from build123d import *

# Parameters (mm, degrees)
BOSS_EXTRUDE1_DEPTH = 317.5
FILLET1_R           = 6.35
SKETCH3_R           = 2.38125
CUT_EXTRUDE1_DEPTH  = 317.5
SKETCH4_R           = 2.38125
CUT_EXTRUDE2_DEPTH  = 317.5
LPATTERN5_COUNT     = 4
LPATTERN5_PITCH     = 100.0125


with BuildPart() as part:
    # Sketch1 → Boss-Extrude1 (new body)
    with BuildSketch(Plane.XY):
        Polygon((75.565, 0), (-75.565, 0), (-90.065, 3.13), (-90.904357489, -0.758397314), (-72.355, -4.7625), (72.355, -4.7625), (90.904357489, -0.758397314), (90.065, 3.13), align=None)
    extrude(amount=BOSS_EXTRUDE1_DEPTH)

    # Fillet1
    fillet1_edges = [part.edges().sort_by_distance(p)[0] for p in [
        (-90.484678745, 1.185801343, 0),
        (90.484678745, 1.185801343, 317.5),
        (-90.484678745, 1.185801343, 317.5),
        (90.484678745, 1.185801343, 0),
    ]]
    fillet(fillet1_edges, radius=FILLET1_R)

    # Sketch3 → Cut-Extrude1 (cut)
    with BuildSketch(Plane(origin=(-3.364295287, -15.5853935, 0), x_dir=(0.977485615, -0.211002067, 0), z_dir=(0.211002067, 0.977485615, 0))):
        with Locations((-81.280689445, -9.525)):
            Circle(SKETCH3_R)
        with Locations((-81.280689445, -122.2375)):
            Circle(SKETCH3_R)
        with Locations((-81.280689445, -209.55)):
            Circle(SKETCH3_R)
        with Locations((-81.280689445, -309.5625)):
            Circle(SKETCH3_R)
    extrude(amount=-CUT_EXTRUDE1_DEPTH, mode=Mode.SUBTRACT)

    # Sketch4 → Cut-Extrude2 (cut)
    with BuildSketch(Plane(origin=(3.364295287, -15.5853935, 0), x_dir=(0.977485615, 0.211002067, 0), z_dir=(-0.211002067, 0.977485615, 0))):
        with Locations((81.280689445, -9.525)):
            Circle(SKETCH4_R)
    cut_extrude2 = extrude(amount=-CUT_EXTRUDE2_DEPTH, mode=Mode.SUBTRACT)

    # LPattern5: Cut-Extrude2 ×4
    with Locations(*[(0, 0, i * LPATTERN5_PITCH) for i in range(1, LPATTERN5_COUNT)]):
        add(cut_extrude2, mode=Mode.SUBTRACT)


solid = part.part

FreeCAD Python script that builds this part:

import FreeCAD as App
import Part
import Sketcher
Q = App.Units.Quantity


def edges_at(feature, points):
    """Names of the edges that pass closest to the given points."""
    edges = feature.Shape.Edges
    near = lambda p: min(range(len(edges)), key=lambda i: edges[i].distToShape(Part.Vertex(*p))[0])
    return sorted({f"Edge{near(p) + 1}" for p in points})

doc = App.newDocument("Part")
body = doc.addObject("PartDesign::Body", "Body")

sketch1 = body.newObject("Sketcher::SketchObject", "Sketch")
sketch1.AttachmentSupport = (doc.getObject("XY_Plane"), [""])
sketch1.MapMode = "FlatFace"
sketch1.addGeometry(Part.LineSegment(App.Vector(75.565, 0, 0), App.Vector(-75.565, 0, 0)), False)
sketch1.addGeometry(Part.LineSegment(App.Vector(-75.565, 0, 0), App.Vector(-90.065, 3.13, 0)), False)
sketch1.addGeometry(Part.LineSegment(App.Vector(-90.065, 3.13, 0), App.Vector(-90.904357, -0.758397, 0)), False)
sketch1.addGeometry(Part.LineSegment(App.Vector(-90.904357, -0.758397, 0), App.Vector(-72.355, -4.7625, 0)), False)
sketch1.addGeometry(Part.LineSegment(App.Vector(-72.355, -4.7625, 0), App.Vector(72.355, -4.7625, 0)), False)
sketch1.addGeometry(Part.LineSegment(App.Vector(72.355, -4.7625, 0), App.Vector(90.904357, -0.758397, 0)), False)
sketch1.addGeometry(Part.LineSegment(App.Vector(90.904357, -0.758397, 0), App.Vector(90.065, 3.13, 0)), False)
sketch1.addGeometry(Part.LineSegment(App.Vector(90.065, 3.13, 0), App.Vector(75.565, 0, 0)), False)
sketch1.addConstraint(Sketcher.Constraint("Coincident", 0, 2, 1, 1))
sketch1.addConstraint(Sketcher.Constraint("Coincident", 1, 2, 2, 1))
sketch1.addConstraint(Sketcher.Constraint("Coincident", 2, 2, 3, 1))
sketch1.addConstraint(Sketcher.Constraint("Coincident", 3, 2, 4, 1))
sketch1.addConstraint(Sketcher.Constraint("Coincident", 4, 2, 5, 1))
sketch1.addConstraint(Sketcher.Constraint("Coincident", 5, 2, 6, 1))
sketch1.addConstraint(Sketcher.Constraint("Coincident", 6, 2, 7, 1))
sketch1.addConstraint(Sketcher.Constraint("Coincident", 7, 2, 0, 1))
sketch1.addConstraint(Sketcher.Constraint("Horizontal", 0))
sketch1.addConstraint(Sketcher.Constraint("Horizontal", 4))
sketch1.addConstraint(Sketcher.Constraint("Symmetric", 0, 2, 7, 2, -1, 1))
sketch1.addConstraint(Sketcher.Constraint("Symmetric", 2, 2, 5, 2, -2))
sketch1.addConstraint(Sketcher.Constraint("Symmetric", 1, 2, 6, 2, -2))
sketch1.addConstraint(Sketcher.Constraint("Perpendicular", 1, 2))
sketch1.addConstraint(Sketcher.Constraint("Perpendicular", 2, 3))
sketch1.addConstraint(Sketcher.Constraint("Perpendicular", 5, 6))
sketch1.addConstraint(Sketcher.Constraint("DistanceX", 0, 2, 0, 1, Q("5.95 in")))
sketch1.addConstraint(Sketcher.Constraint("DistanceY", 3, 2, -1, 1, Q("0.1875 in")))
sketch1.addConstraint(Sketcher.Constraint("DistanceX", 4, 1, 4, 2, 144.71))
sketch1.addConstraint(Sketcher.Constraint("DistanceX", 1, 2, -1, 1, 90.065))
sketch1.addConstraint(Sketcher.Constraint("DistanceY", -1, 1, 1, 2, 3.13))
pad1 = body.newObject("PartDesign::Pad", "Pad")
pad1.Profile = sketch1
pad1.Length = Q("12.5 in")
doc.recompute()

fillet = body.newObject("PartDesign::Fillet", "Fillet")
fillet.Base = (pad1, edges_at(pad1, [
    (-90.485, 1.186, 0),
    (90.485, 1.186, 317.5),
    (-90.485, 1.186, 317.5),
    (90.485, 1.186, 0),
]))
fillet.Radius = Q("0.25 in")

sketch2 = body.newObject("Sketcher::SketchObject", "Sketch001")
sketch2.Placement = App.Placement(App.Vector(-3.364295, -15.585394, 0), App.Rotation(App.Vector(0.977485615, -0.211002067, 0), App.Vector(0, 0, -1), App.Vector(0.211002067, 0.977485615, 0), "ZXY"))
sketch2.addGeometry(Part.Circle(App.Vector(-81.280689, -9.525, 0), App.Vector(0, 0, 1), 2.38125), False)
sketch2.addGeometry(Part.Circle(App.Vector(-81.280689, -122.2375, 0), App.Vector(0, 0, 1), 2.38125), False)
sketch2.addGeometry(Part.Circle(App.Vector(-81.280689, -209.55, 0), App.Vector(0, 0, 1), 2.38125), False)
sketch2.addGeometry(Part.Circle(App.Vector(-81.280689, -309.5625, 0), App.Vector(0, 0, 1), 2.38125), False)
sketch2.addConstraint(Sketcher.Constraint("Equal", 0, 1))
sketch2.addConstraint(Sketcher.Constraint("Equal", 1, 2))
sketch2.addConstraint(Sketcher.Constraint("Equal", 2, 3))
sketch2.addConstraint(Sketcher.Constraint("Vertical", 0, 3, 1, 3))
sketch2.addConstraint(Sketcher.Constraint("Vertical", 1, 3, 2, 3))
sketch2.addConstraint(Sketcher.Constraint("Vertical", 2, 3, 3, 3))
sketch2.addConstraint(Sketcher.Constraint("Diameter", 0, Q("0.1875 in")))
sketch2.addConstraint(Sketcher.Constraint("DistanceY", 2, 3, -1, 1, Q("8.25 in")))
sketch2.addConstraint(Sketcher.Constraint("DistanceY", 0, 3, -1, 1, Q("0.375 in")))
sketch2.addConstraint(Sketcher.Constraint("DistanceY", 1, 3, -1, 1, Q("4.8125 in")))
sketch2.addConstraint(Sketcher.Constraint("DistanceY", 3, 3, -1, 1, Q("12.1875 in")))
sketch2.addConstraint(Sketcher.Constraint("DistanceX", 0, 3, -1, 1, 81.280689))
pocket1 = body.newObject("PartDesign::Pocket", "Pocket")
pocket1.Profile = sketch2
pocket1.Length = Q("12.5 in")

sketch3 = body.newObject("Sketcher::SketchObject", "Sketch002")
sketch3.Placement = App.Placement(App.Vector(3.364295, -15.585394, 0), App.Rotation(App.Vector(0.977485615, 0.211002067, 0), App.Vector(0, 0, -1), App.Vector(-0.211002067, 0.977485615, 0), "ZXY"))
sketch3.addGeometry(Part.Circle(App.Vector(81.280689, -9.525, 0), App.Vector(0, 0, 1), 2.38125), False)
sketch3.addConstraint(Sketcher.Constraint("Diameter", 0, Q("0.1875 in")))
sketch3.addConstraint(Sketcher.Constraint("DistanceY", 0, 3, -1, 1, Q("0.375 in")))
sketch3.addConstraint(Sketcher.Constraint("DistanceX", -1, 1, 0, 3, 81.280689))
pocket2 = body.newObject("PartDesign::Pocket", "Pocket001")
pocket2.Profile = sketch3
pocket2.Length = Q("12.5 in")
doc.recompute()

linearpattern = body.newObject("PartDesign::LinearPattern", "LinearPattern")
linearpattern.Originals = [pocket2]
linearpattern.Direction = (doc.getObject("Z_Axis"), [""])
linearpattern.Mode = "offset"
linearpattern.Offset = Q("3.9375 in")
linearpattern.Occurrences = 4
body.Tip = linearpattern

doc.recompute()
